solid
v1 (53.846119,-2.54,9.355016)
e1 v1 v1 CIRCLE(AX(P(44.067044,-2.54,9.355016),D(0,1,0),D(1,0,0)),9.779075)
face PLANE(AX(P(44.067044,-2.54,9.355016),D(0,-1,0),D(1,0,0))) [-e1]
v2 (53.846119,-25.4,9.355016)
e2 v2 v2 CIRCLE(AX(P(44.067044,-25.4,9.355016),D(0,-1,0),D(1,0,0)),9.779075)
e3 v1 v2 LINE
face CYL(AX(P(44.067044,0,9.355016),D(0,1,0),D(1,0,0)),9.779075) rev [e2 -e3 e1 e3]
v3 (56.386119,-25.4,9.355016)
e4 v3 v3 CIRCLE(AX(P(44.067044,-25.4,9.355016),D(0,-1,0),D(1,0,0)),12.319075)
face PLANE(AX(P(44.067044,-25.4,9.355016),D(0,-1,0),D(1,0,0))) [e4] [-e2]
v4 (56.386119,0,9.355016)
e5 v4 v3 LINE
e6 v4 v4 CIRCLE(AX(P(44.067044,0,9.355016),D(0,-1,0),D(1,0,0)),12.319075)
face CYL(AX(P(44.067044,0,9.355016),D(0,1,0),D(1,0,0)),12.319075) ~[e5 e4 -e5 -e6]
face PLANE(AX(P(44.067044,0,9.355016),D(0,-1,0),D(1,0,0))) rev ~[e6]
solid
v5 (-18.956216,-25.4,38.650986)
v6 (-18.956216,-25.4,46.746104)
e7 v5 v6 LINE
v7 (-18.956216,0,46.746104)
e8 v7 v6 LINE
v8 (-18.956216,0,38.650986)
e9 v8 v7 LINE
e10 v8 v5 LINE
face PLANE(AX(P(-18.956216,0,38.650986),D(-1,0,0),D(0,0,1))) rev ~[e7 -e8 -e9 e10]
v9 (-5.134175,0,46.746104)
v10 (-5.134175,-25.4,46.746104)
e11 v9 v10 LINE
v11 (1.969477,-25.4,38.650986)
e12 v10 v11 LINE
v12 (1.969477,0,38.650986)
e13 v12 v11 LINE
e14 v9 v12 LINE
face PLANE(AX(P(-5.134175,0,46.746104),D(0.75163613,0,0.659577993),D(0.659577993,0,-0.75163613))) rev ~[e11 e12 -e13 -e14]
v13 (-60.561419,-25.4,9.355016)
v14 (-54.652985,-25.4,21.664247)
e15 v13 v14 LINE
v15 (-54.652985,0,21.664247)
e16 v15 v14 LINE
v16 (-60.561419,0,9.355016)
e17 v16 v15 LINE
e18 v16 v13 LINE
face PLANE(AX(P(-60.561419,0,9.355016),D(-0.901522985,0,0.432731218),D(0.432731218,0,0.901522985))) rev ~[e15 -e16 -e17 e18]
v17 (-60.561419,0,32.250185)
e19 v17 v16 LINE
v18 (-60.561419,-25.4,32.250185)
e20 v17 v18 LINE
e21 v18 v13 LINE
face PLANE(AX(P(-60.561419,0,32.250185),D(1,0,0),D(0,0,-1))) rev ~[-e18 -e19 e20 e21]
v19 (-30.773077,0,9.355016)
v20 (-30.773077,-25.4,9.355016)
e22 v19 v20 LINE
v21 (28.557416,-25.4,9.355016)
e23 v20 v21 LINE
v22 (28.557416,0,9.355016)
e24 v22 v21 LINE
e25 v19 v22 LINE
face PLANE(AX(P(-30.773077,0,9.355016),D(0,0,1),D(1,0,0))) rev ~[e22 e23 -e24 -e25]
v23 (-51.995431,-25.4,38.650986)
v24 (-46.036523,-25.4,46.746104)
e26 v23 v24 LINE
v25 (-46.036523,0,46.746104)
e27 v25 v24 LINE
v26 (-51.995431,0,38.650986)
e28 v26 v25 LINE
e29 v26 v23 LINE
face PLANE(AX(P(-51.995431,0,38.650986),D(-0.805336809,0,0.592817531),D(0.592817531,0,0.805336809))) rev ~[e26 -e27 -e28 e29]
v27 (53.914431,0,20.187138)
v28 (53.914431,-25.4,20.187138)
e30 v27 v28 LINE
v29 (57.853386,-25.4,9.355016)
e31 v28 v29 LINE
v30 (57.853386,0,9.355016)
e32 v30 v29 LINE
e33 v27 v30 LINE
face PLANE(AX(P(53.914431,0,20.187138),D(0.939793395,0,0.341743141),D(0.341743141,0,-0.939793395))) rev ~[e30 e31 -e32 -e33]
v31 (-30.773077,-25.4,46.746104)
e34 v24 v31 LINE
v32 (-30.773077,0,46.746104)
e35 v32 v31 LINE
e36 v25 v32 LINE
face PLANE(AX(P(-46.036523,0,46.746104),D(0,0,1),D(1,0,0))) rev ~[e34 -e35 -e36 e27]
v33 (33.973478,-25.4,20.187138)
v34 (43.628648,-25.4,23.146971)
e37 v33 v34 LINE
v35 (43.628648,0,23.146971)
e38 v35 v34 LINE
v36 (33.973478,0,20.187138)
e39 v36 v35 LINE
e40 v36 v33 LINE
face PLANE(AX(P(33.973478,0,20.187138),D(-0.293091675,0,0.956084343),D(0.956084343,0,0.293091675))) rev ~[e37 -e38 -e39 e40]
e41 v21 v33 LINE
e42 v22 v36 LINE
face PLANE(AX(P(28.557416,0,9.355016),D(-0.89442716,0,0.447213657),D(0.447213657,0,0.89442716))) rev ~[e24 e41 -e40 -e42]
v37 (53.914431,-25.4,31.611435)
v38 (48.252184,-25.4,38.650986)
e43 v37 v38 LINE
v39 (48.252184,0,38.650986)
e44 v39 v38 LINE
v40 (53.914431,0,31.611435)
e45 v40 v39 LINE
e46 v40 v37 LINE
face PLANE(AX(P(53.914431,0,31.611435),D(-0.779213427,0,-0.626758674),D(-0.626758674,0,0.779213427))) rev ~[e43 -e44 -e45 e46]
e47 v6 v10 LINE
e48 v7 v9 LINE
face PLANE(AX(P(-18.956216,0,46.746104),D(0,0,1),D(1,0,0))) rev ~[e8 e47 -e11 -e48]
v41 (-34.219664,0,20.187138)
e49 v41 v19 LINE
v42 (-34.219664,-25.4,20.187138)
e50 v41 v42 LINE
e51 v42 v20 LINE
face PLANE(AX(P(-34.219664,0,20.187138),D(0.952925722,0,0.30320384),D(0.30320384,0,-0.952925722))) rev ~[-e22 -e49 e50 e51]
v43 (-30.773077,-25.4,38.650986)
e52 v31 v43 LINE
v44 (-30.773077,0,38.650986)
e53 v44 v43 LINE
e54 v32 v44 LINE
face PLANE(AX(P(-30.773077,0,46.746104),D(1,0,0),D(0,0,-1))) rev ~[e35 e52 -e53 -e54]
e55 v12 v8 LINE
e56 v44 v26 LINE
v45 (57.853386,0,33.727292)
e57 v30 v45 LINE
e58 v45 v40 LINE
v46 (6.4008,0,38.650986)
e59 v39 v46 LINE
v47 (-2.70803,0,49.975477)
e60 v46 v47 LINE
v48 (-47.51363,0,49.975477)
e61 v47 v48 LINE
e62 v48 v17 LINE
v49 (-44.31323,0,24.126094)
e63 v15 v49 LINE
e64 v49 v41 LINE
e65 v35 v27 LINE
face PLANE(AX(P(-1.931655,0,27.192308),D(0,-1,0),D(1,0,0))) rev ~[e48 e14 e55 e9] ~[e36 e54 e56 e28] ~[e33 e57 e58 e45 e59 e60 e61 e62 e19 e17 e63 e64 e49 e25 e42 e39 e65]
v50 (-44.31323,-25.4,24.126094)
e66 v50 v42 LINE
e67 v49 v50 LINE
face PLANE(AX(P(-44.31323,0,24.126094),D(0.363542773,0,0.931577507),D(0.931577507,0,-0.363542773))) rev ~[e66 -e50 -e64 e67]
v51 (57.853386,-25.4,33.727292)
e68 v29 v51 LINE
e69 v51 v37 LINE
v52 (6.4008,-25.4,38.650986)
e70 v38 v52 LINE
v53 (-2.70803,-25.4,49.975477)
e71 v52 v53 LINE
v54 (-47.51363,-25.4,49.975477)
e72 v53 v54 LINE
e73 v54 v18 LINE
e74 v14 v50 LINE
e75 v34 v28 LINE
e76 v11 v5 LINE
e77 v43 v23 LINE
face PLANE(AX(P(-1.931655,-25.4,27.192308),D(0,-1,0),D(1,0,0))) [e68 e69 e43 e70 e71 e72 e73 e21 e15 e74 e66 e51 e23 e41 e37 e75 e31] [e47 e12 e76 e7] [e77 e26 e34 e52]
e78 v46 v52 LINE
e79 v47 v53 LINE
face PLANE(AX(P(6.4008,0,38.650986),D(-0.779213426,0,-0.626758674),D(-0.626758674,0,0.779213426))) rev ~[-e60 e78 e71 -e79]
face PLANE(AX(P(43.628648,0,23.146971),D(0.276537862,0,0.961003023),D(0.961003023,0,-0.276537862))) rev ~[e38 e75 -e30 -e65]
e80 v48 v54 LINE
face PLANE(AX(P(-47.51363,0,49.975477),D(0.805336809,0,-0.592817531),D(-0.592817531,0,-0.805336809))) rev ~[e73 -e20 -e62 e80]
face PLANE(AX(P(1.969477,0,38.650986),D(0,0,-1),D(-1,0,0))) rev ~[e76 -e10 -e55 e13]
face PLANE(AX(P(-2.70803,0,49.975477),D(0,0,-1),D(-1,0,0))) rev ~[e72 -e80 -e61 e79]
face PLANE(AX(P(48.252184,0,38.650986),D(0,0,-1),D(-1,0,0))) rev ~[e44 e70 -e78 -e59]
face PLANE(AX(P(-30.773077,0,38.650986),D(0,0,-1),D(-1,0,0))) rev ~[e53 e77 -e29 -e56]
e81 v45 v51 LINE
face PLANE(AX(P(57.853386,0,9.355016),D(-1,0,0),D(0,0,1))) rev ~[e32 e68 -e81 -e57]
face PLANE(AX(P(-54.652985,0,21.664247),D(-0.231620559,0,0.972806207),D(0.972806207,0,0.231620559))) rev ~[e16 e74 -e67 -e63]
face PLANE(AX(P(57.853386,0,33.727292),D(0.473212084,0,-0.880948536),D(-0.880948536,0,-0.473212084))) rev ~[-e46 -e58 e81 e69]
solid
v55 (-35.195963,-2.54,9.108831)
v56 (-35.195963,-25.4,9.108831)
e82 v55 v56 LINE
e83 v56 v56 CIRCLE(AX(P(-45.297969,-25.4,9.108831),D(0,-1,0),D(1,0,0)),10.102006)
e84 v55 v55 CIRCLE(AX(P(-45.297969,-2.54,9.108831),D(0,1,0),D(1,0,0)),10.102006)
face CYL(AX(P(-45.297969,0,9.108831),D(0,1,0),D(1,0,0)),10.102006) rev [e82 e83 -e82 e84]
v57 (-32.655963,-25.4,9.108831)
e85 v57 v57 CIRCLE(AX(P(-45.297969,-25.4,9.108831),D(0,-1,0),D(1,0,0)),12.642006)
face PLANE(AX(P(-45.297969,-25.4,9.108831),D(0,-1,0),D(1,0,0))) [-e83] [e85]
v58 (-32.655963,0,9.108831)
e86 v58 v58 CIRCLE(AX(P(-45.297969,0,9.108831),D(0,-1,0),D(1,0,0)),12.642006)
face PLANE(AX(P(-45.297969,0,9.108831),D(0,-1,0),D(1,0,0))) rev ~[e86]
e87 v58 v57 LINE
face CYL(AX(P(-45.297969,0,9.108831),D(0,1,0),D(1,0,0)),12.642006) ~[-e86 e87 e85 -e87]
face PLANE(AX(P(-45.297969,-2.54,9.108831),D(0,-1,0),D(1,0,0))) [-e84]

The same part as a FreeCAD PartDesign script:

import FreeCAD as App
import Part
import Sketcher

V = App.Vector
Q = App.Units.Quantity


def faces_at(feature, points):
    """Names of the faces that lie closest to the given points."""
    faces = feature.Shape.Faces
    near = lambda p: min(range(len(faces)), key=lambda i: faces[i].distToShape(Part.Vertex(*p))[0])
    return sorted({f"Face{near(p) + 1}" for p in points})


def add_polygon(sketch, points):
    """Adds a closed chain of lines whose ends are joined by coincident constraints."""
    first, n = sketch.GeometryCount, len(points)
    for a, b in zip(points, points[1:] + points[:1]):
        sketch.addGeometry(Part.LineSegment(App.Vector(*a, 0), App.Vector(*b, 0)), False)
    for i in range(n):
        sketch.addConstraint(Sketcher.Constraint("Coincident", first + i, 2, first + (i + 1) % n, 1))

doc = App.newDocument("Part")
params = doc.addObject("Spreadsheet::Sheet", "Params")
for row, (alias, value) in enumerate([
    ("sketch1_width", "1.764 in"),
    ("pad1_length", "1 in"),
    ("pad2_length", "1 in"),
    ("thickness_wall", "0.1 in"),
    ("pad3_length", "1 in"),
    ("thickness2_wall", "0.1 in"),
], start=1):
    params.set(f"A{row}", alias)
    params.set(f"B{row}", "=" + value)
    params.setAlias(f"B{row}", alias)

body = doc.addObject("PartDesign::Body", "Body")

sketch1 = doc.addObject("Sketcher::SketchObject", "Sketch")
body.addObject(sketch1)
sketch1.AttachmentSupport = (doc.XZ_Plane, [""])
sketch1.MapMode = "FlatFace"
add_polygon(sketch1, [(-34.2, 20.2), (-30.8, 9.4), (28.6, 9.4), (34, 20.2), (43.6, 23.1), (53.9, 20.2), (57.9, 9.4), (57.9, 33.7), (53.9, 31.6), (48.3, 38.7), (6.4, 38.7), (-2.7, 50), (-47.5, 50), (-60.6, 32.3), (-60.6, 9.4), (-54.7, 21.7), (-44.3, 24.1)])
add_polygon(sketch1, [(-46, 46.7), (-30.8, 46.7), (-30.8, 38.7), (-52, 38.7)])
add_polygon(sketch1, [(-19, 46.7), (-5.1, 46.7), (2, 38.7), (-19, 38.7)])
sketch1.addConstraint(Sketcher.Constraint("Horizontal", 1))
sketch1.addConstraint(Sketcher.Constraint("Vertical", 6))
sketch1.addConstraint(Sketcher.Constraint("Horizontal", 9))
sketch1.addConstraint(Sketcher.Constraint("Horizontal", 11))
sketch1.addConstraint(Sketcher.Constraint("Vertical", 13))
sketch1.addConstraint(Sketcher.Constraint("Horizontal", 17))
sketch1.addConstraint(Sketcher.Constraint("Vertical", 18))
sketch1.addConstraint(Sketcher.Constraint("Horizontal", 19))
sketch1.addConstraint(Sketcher.Constraint("Horizontal", 21))
sketch1.addConstraint(Sketcher.Constraint("Horizontal", 23))
sketch1.addConstraint(Sketcher.Constraint("Vertical", 24))
sketch1.addConstraint(Sketcher.Constraint("Parallel", 8, 10))
sketch1.addConstraint(Sketcher.Constraint("Parallel", 12, 20))
sketch1.addConstraint(Sketcher.Constraint("Horizontal", 2, 2, 4, 2))
sketch1.addConstraint(Sketcher.Constraint("Horizontal", 1, 2, 5, 2))
sketch1.addConstraint(Sketcher.Constraint("Horizontal", 5, 2, 13, 2))
sketch1.addConstraint(Sketcher.Constraint("Horizontal", 4, 2, 16, 2))
sketch1.addConstraint(Sketcher.Constraint("Horizontal", 9, 2, 18, 2))
sketch1.addConstraint(Sketcher.Constraint("Horizontal", 20, 2, 21, 2))
sketch1.addConstraint(Sketcher.Constraint("Horizontal", 19, 2, 22, 2))
sketch1.addConstraint(Sketcher.Constraint("Vertical", 4, 2, 7, 2))
sketch1.addConstraint(Sketcher.Constraint("Vertical", 0, 2, 17, 2))
sketch1.addConstraint(Sketcher.Constraint("DistanceX", 11, 2, 11, 1, Q("1.764 in")))
sketch1.addConstraint(Sketcher.Constraint("DistanceX", -1, 1, 9, 2, Q("0.252 in")))
sketch1.addConstraint(Sketcher.Constraint("DistanceX", 8, 2, 6, 2, Q("0.3780001 in")))
sketch1.addConstraint(Sketcher.Constraint("DistanceY", 12, 2, 9, 2, Q("0.252 in")))
sketch1.addConstraint(Sketcher.Constraint("DistanceX", 11, 2, 15, 2, Q("0.126 in")))
sketch1.addConstraint(Sketcher.Constraint("DistanceX", 21, 1, 21, 2, 13.822041))
sketch1.addConstraint(Sketcher.Constraint("DistanceY", 13, 2, 13, 1, 22.895169))
sketch1.addConstraint(Sketcher.Constraint("DistanceX", 19, 2, 11, 2, 4.4818))
sketch1.addConstraint(Sketcher.Constraint("Distance", 2, 12.110681))
sketch1.addConstraint(Sketcher.Constraint("Distance", 3, 10.09866))
sketch1.addConstraint(Sketcher.Constraint("Distance", 12, 22.009788))
sketch1.addConstraint(Sketcher.Constraint("Distance", 14, 13.653818))
sketch1.addConstraint(Sketcher.Constraint("Distance", 16, 10.834918))
sketch1.addConstraint(Sketcher.Constraint("Distance", 20, 10.051842))
sketch1.addConstraint(Sketcher.Constraint("DistanceX", 1, 1, 1, 2, 59.330493))
sketch1.addConstraint(Sketcher.Constraint("DistanceX", 9, 2, 9, 1, 41.851384))
sketch1.addConstraint(Sketcher.Constraint("DistanceX", 17, 1, 17, 2, 15.263446))
sketch1.addConstraint(Sketcher.Constraint("DistanceX", 19, 2, 19, 1, 21.222354))
sketch1.addConstraint(Sketcher.Constraint("DistanceX", 23, 2, 23, 1, 20.925693))
sketch1.addConstraint(Sketcher.Constraint("DistanceY", 6, 1, 6, 2, 24.372276))
sketch1.addConstraint(Sketcher.Constraint("DistanceX", -1, 1, 3, 2, 43.628648))
sketch1.addConstraint(Sketcher.Constraint("DistanceY", -1, 1, 3, 2, 23.146971))
sketch1.addConstraint(Sketcher.Constraint("DistanceX", -1, 1, 4, 2, 53.914431))
sketch1.addConstraint(Sketcher.Constraint("DistanceY", -1, 1, 6, 2, 33.727292))
sketch1.addConstraint(Sketcher.Constraint("DistanceX", 10, 2, -1, 1, 2.70803))
sketch1.addConstraint(Sketcher.Constraint("DistanceY", 13, 2, 14, 2, 12.309231))
sketch1.addConstraint(Sketcher.Constraint("DistanceY", 15, 2, 12, 2, 8.124091))
sketch1.addConstraint(Sketcher.Constraint("DistanceX", 16, 2, 21, 2, 29.085489))
sketch1.setExpression("Constraints[47]", "Params.sketch1_width")
pad1 = doc.addObject("PartDesign::Pad", "Pad")
body.addObject(pad1)
pad1.Profile = sketch1
pad1.setExpression("Length", "Params.pad1_length")
body2 = doc.addObject("PartDesign::Body", "Body001")

sketch2 = doc.addObject("Sketcher::SketchObject", "Sketch001")
body2.addObject(sketch2)
sketch2.AttachmentSupport = (doc.getObject("XZ_Plane001"), [""])
sketch2.MapMode = "FlatFace"
sketch2.addGeometry(Part.Circle(V(-45, 9, 0), V(0, 0, 1), 13), False)
sketch2.addConstraint(Sketcher.Constraint("Diameter", 0, 25.284012))
sketch2.addConstraint(Sketcher.Constraint("DistanceX", 0, 3, -1, 1, 45.297969))
sketch2.addConstraint(Sketcher.Constraint("DistanceY", -1, 1, 0, 3, 9.108831))
pad2 = doc.addObject("PartDesign::Pad", "Pad001")
body2.addObject(pad2)
pad2.Profile = sketch2
pad2.setExpression("Length", "Params.pad2_length")
doc.recompute()

thickness = doc.addObject("PartDesign::Thickness", "Thickness")
body2.addObject(thickness)
thickness.Base = (pad2, faces_at(pad2, [(-45.298, -25.4, 9.109)]))
thickness.setExpression("Value", "Params.thickness_wall")
thickness.Reversed = True
thickness.Join = "Arc"
body3 = doc.addObject("PartDesign::Body", "Body002")

sketch3 = doc.addObject("Sketcher::SketchObject", "Sketch002")
body3.addObject(sketch3)
sketch3.AttachmentSupport = (doc.getObject("XZ_Plane002"), [""])
sketch3.MapMode = "FlatFace"
sketch3.addGeometry(Part.Circle(V(44, 9, 0), V(0, 0, 1), 12), False)
sketch3.addConstraint(Sketcher.Constraint("Diameter", 0, 24.63815))
sketch3.addConstraint(Sketcher.Constraint("DistanceX", -1, 1, 0, 3, 44.067044))
sketch3.addConstraint(Sketcher.Constraint("DistanceY", -1, 1, 0, 3, 9.355016))
pad3 = doc.addObject("PartDesign::Pad", "Pad002")
body3.addObject(pad3)
pad3.Profile = sketch3
pad3.setExpression("Length", "Params.pad3_length")
doc.recompute()

thickness2 = doc.addObject("PartDesign::Thickness", "Thickness001")
body3.addObject(thickness2)
thickness2.Base = (pad3, faces_at(pad3, [(44.067, -25.4, 9.355)]))
thickness2.setExpression("Value", "Params.thickness2_wall")
thickness2.Reversed = True
thickness2.Join = "Arc"

doc.recompute()
